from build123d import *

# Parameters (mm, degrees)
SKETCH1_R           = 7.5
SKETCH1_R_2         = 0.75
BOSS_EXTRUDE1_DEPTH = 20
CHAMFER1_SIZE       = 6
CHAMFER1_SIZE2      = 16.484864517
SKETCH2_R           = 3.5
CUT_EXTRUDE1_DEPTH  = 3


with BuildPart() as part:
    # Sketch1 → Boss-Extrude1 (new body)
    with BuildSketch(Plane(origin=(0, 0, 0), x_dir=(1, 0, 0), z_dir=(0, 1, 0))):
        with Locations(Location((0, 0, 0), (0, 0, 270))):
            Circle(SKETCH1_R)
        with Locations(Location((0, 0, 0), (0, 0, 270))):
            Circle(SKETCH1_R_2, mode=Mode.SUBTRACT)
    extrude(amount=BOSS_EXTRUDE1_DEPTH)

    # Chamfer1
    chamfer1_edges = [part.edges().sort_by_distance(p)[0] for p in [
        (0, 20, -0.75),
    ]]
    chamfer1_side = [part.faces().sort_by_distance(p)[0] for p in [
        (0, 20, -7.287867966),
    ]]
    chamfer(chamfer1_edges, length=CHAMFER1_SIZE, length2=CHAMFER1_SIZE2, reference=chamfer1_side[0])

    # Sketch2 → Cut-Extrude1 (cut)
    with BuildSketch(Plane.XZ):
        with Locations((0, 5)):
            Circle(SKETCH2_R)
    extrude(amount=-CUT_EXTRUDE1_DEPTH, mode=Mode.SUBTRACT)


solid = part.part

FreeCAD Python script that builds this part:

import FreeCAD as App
import Part
import Sketcher

V = App.Vector


def edges_at(feature, points):
    """Names of the edges that pass closest to the given points."""
    edges = feature.Shape.Edges
    near = lambda p: min(range(len(edges)), key=lambda i: edges[i].distToShape(Part.Vertex(*p))[0])
    return sorted({f"Edge{near(p) + 1}" for p in points})

doc = App.newDocument("Part")
body = doc.addObject("PartDesign::Body", "Body")

# Sketch on XZ plane
sketch1 = body.newObject("Sketcher::SketchObject", "Sketch")
sketch1.AttachmentSupport = (doc.getObject("XZ_Plane"), [""])
sketch1.MapMode = "FlatFace"
sketch1.addGeometry([
    Part.Circle(V(0, 0, 0), V(0, 0, 1), 7.5),
    Part.Circle(V(0, 0, 0), V(0, 0, 1), 0.8),
], False)
sketch1.addConstraint([
    Sketcher.Constraint("Coincident", 0, 3, -1, 1),
    Sketcher.Constraint("Coincident", 1, 3, -1, 1),
    Sketcher.Constraint("Diameter", 0, 15.0),
    Sketcher.Constraint("Diameter", 1, 1.5),
])
pad1 = body.newObject("PartDesign::Pad", "Pad")
pad1.Profile = sketch1
pad1.Length = 20
pad1.Reversed = True
doc.recompute()

chamfer = body.newObject("PartDesign::Chamfer", "Chamfer")
chamfer.Base = (pad1, edges_at(pad1, [(0, 20, -0.75)]))
chamfer.ChamferType = "Two distances"
chamfer.Size = 6
chamfer.Size2 = 16.484865
chamfer.FlipDirection = True

# Sketch on XZ plane
sketch2 = body.newObject("Sketcher::SketchObject", "Sketch001")
sketch2.AttachmentSupport = (doc.getObject("XZ_Plane"), [""])
sketch2.MapMode = "FlatFace"
sketch2.addGeometry(Part.Circle(V(0, 5, 0), V(0, 0, 1), 3.5), False)
sketch2.addConstraint([
    Sketcher.Constraint("PointOnObject", 0, 3, -2),
    Sketcher.Constraint("Diameter", 0, 7.0),
    Sketcher.Constraint("DistanceY", -1, 1, 0, 3, 5.0),
])
pocket1 = body.newObject("PartDesign::Pocket", "Pocket")
pocket1.Profile = sketch2
pocket1.Length = 3

doc.recompute()
